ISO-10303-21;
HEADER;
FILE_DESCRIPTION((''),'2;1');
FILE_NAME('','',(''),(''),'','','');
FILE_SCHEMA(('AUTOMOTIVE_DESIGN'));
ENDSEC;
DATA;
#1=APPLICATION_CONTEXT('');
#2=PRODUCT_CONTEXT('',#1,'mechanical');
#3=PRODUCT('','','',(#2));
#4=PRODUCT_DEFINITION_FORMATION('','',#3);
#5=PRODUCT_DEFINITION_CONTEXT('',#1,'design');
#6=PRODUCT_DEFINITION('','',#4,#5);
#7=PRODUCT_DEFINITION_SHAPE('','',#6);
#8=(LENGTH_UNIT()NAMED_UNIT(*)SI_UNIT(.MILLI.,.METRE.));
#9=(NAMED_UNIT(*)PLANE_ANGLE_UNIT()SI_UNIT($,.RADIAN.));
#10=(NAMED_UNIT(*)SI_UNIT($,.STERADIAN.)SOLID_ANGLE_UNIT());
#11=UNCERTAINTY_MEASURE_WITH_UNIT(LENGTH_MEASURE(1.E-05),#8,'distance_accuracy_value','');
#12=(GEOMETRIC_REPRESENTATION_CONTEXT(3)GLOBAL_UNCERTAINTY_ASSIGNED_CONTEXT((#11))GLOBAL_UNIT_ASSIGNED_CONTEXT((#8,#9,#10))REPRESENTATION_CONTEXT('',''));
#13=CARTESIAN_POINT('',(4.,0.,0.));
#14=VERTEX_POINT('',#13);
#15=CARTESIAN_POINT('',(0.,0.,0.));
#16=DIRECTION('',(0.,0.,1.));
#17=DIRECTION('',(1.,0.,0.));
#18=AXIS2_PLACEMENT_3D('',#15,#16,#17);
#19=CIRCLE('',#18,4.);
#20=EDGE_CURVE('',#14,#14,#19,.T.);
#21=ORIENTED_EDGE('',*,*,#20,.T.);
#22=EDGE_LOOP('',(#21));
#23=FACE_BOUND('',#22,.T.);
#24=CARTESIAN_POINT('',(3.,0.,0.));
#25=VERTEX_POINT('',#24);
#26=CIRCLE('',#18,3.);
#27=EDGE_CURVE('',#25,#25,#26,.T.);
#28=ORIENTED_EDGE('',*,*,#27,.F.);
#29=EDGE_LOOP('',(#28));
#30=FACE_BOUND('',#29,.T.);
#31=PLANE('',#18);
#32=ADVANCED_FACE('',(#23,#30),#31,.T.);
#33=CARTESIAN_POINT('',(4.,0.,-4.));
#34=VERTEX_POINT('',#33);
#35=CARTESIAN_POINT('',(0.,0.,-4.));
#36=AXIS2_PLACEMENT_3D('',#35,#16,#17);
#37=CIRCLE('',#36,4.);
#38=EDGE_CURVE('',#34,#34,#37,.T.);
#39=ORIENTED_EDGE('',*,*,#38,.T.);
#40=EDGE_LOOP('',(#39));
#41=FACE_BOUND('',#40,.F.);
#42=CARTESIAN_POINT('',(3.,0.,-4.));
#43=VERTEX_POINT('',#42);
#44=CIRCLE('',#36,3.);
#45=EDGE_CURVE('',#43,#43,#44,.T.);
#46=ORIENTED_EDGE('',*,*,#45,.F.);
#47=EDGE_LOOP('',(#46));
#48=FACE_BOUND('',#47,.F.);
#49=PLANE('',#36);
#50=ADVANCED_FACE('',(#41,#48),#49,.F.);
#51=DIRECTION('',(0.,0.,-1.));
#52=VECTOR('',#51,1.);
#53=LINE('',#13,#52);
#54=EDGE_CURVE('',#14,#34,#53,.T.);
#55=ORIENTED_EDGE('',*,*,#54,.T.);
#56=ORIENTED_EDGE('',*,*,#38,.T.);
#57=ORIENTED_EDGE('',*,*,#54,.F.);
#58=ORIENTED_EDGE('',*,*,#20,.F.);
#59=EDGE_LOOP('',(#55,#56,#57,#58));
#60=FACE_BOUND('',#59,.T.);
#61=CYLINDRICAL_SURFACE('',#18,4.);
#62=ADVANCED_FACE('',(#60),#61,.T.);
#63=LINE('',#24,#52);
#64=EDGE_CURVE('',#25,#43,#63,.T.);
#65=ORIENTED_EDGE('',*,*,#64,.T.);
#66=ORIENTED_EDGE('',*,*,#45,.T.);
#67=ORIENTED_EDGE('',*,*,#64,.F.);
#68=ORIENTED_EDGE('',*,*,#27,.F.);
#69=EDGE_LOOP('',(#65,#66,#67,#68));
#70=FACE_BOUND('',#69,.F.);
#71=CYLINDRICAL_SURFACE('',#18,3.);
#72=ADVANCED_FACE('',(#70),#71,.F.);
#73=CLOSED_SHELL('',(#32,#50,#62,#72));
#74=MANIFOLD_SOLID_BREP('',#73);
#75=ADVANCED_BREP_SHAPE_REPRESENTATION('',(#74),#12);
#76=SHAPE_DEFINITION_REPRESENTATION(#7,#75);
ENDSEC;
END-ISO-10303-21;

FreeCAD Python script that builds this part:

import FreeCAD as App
import Part
import Sketcher
from FreeCAD import Vector

doc = App.newDocument("Part")
body = doc.addObject("PartDesign::Body", "Body")

sketch1 = body.newObject("Sketcher::SketchObject", "Sketch")
sketch1.AttachmentSupport = (doc.getObject("XY_Plane"), [""])
sketch1.MapMode = "FlatFace"
sketch1.addGeometry([
    Part.Circle(Vector(0, 0, 0), Vector(0, 0, 1), 4),
    Part.Circle(Vector(0, 0, 0), Vector(0, 0, 1), 3),
], False)
sketch1.addConstraint([
    Sketcher.Constraint("Coincident", 0, 3, -1, 1),
    Sketcher.Constraint("Coincident", 1, 3, -1, 1),
    Sketcher.Constraint("Diameter", 0, 8.0),
    Sketcher.Constraint("Diameter", 1, 6.0),
])
pad1 = body.newObject("PartDesign::Pad", "Pad")
pad1.Profile = sketch1
pad1.Length = 4
pad1.Reversed = True

doc.recompute()
